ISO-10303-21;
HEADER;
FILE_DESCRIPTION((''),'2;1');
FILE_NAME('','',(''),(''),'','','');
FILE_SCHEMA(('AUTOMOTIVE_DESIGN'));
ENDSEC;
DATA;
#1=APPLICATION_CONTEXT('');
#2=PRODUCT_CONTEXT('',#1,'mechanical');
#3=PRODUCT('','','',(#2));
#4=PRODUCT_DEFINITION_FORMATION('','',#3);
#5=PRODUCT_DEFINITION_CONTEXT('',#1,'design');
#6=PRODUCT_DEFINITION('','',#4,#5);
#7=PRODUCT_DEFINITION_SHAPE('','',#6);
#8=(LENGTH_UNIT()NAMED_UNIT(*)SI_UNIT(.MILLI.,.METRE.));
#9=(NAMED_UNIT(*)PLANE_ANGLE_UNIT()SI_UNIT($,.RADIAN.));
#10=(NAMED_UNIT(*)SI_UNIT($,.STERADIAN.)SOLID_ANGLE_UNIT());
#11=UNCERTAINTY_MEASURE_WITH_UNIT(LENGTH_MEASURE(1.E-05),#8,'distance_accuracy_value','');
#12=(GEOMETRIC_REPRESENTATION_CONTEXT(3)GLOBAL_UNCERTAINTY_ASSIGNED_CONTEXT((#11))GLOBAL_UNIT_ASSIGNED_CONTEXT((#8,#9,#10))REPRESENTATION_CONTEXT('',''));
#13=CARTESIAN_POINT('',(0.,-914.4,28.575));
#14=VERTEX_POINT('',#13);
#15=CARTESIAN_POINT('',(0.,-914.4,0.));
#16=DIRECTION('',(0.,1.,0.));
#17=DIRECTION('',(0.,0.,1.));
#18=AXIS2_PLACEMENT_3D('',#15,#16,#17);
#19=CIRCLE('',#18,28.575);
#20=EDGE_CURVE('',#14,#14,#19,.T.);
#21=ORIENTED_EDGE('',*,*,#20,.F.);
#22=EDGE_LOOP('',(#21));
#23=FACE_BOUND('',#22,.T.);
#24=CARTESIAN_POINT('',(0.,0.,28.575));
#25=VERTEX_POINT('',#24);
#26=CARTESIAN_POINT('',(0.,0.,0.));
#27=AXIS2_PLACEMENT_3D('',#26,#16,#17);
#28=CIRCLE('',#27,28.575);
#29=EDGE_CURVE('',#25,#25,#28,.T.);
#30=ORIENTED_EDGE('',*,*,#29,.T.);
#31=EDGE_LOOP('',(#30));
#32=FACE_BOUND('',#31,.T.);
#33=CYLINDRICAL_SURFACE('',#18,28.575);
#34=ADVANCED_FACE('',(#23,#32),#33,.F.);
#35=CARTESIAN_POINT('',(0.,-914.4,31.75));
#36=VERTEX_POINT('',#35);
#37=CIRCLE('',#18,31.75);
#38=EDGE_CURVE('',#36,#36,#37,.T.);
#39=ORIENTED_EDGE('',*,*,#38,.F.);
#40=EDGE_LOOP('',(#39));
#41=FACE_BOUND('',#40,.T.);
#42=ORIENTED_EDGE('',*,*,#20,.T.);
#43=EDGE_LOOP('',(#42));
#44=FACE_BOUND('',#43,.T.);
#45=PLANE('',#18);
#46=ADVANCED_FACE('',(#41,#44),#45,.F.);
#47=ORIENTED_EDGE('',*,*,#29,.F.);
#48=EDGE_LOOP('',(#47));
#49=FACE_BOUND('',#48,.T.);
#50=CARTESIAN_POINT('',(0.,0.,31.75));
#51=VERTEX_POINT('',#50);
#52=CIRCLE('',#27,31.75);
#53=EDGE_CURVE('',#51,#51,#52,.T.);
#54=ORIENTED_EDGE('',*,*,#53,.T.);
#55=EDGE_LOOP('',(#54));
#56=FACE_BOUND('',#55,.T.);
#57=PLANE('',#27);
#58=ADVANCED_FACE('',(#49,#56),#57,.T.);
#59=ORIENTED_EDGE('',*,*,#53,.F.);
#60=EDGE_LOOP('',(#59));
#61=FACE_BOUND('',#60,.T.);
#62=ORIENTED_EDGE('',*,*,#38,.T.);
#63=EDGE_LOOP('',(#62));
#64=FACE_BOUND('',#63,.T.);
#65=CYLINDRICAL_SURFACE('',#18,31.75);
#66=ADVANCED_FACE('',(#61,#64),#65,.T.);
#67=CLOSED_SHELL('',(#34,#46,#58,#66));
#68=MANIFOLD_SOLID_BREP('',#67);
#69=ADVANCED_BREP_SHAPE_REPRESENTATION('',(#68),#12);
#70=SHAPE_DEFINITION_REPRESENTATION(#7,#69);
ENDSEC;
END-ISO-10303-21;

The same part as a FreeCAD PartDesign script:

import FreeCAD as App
import Part
import Sketcher
from FreeCAD import Vector
Q = App.Units.Quantity

doc = App.newDocument("Part")
body = doc.addObject("PartDesign::Body", "Body")

sketch1 = body.newObject("Sketcher::SketchObject", "Sketch")
sketch1.AttachmentSupport = (doc.getObject("XZ_Plane"), [""])
sketch1.MapMode = "FlatFace"
sketch1.addGeometry(Part.Circle(Vector(0, 0, 0), Vector(0, 0, 1), 32), False)
sketch1.addConstraint(Sketcher.Constraint("Coincident", 0, 3, -1, 1))
sketch1.addConstraint(Sketcher.Constraint("Diameter", 0, Q("2.5 in")))
pad1 = body.newObject("PartDesign::Pad", "Pad")
pad1.Profile = sketch1
pad1.Length = Q("36 in")

sketch2 = body.newObject("Sketcher::SketchObject", "Sketch001")
sketch2.AttachmentSupport = (doc.getObject("XZ_Plane"), [""])
sketch2.MapMode = "FlatFace"
sketch2.addGeometry(Part.Circle(Vector(0, 0, 0), Vector(0, 0, 1), 29), False)
sketch2.addConstraint(Sketcher.Constraint("Coincident", 0, 3, -1, 1))
sketch2.addConstraint(Sketcher.Constraint("Diameter", 0, Q("2.25 in")))
pocket1 = body.newObject("PartDesign::Pocket", "Pocket")
pocket1.Profile = sketch2
pocket1.Type = "ThroughAll"
pocket1.Reversed = True

doc.recompute()
